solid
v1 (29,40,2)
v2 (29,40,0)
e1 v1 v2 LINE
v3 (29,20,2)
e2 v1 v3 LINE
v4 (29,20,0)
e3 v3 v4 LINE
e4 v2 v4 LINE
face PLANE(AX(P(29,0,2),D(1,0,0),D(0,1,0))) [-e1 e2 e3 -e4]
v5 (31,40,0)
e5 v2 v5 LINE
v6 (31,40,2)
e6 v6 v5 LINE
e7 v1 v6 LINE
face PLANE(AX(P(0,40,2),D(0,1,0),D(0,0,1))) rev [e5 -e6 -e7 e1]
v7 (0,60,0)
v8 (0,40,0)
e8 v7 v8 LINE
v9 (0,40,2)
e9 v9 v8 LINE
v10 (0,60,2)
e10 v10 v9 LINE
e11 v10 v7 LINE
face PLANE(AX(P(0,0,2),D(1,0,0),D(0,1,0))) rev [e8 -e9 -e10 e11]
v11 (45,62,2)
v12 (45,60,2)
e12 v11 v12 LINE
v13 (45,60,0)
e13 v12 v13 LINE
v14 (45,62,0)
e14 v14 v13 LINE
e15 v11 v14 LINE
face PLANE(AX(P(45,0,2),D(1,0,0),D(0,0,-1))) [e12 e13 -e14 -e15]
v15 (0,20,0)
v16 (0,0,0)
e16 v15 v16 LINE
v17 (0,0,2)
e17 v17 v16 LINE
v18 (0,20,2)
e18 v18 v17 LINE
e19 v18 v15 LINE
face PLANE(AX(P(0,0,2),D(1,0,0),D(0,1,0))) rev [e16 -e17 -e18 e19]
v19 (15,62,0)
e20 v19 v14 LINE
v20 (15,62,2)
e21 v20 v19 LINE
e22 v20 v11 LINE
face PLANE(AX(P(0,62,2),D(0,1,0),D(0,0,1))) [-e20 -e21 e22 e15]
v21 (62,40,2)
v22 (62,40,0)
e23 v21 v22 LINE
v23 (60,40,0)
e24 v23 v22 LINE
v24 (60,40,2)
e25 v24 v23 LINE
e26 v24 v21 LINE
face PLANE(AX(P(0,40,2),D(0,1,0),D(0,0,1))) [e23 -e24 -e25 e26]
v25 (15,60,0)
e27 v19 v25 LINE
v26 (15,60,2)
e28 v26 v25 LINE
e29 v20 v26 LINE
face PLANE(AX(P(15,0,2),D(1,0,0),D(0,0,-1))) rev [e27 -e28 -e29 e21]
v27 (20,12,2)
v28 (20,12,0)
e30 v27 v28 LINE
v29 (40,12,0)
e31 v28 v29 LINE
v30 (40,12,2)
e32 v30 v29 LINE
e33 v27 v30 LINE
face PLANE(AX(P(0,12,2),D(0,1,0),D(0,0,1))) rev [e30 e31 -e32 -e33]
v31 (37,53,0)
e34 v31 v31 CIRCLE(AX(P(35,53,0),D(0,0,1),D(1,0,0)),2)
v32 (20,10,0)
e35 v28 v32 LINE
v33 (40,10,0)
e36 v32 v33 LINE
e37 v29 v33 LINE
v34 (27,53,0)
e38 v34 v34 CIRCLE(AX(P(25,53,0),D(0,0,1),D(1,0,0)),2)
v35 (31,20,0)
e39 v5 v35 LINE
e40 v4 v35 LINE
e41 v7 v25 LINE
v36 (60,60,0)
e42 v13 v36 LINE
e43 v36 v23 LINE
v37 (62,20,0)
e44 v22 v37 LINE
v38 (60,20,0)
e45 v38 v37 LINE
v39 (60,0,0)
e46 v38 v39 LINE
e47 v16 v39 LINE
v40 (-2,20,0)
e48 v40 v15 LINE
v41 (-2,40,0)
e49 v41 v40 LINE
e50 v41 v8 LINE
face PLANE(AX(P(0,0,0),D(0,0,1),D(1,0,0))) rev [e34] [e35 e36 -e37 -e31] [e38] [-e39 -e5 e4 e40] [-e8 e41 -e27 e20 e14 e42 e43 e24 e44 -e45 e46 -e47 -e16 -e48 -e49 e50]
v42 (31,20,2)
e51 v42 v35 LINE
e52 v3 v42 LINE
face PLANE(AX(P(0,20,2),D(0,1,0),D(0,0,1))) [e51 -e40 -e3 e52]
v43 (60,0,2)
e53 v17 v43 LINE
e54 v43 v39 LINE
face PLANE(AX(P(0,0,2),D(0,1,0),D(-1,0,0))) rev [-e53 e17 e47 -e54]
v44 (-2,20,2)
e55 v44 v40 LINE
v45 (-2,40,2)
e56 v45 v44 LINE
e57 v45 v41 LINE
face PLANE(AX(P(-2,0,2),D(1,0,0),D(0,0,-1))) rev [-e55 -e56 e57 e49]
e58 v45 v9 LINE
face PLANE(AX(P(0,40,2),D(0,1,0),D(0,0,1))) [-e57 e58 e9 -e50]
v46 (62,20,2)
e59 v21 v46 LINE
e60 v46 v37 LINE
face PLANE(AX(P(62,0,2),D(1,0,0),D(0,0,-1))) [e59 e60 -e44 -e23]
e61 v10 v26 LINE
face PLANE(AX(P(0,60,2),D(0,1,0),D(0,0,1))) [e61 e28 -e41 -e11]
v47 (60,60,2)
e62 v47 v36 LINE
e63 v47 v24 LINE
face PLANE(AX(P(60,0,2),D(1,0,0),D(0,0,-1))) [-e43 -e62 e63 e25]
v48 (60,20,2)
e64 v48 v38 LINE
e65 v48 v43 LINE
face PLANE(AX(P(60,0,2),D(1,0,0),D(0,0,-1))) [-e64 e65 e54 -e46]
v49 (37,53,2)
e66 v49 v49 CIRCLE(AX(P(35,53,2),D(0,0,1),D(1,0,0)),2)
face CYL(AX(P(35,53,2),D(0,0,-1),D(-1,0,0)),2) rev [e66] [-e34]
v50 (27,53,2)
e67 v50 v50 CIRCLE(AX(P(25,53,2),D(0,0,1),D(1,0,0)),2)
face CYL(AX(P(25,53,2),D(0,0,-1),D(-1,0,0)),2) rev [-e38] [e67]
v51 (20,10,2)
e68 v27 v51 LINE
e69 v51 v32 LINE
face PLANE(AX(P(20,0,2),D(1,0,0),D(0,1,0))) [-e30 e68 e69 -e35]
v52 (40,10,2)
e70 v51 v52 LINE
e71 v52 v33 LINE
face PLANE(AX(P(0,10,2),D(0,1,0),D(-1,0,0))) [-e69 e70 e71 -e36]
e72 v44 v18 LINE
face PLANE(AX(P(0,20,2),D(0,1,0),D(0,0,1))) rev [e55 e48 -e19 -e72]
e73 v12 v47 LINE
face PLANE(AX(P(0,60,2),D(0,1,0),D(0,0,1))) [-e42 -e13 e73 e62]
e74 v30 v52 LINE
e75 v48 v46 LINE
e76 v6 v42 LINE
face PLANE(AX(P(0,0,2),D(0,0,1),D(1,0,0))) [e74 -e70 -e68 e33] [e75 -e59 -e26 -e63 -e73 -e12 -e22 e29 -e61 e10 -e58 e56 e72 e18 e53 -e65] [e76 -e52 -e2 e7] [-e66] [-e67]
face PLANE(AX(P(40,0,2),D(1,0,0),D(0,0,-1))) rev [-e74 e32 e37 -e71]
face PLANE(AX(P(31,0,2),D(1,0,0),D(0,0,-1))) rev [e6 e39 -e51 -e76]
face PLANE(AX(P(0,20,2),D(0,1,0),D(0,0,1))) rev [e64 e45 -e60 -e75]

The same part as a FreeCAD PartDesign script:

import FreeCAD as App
import Part
import Sketcher

V = App.Vector


def add_polygon(sketch, points):
    """Adds a closed chain of lines whose ends are joined by coincident constraints."""
    first, n = sketch.GeometryCount, len(points)
    for a, b in zip(points, points[1:] + points[:1]):
        sketch.addGeometry(Part.LineSegment(App.Vector(*a, 0), App.Vector(*b, 0)), False)
    for i in range(n):
        sketch.addConstraint(Sketcher.Constraint("Coincident", first + i, 2, first + (i + 1) % n, 1))

doc = App.newDocument("Part")
body = doc.addObject("PartDesign::Body", "Body")

# Sketch on XY plane
sketch1 = body.newObject("Sketcher::SketchObject", "Sketch")
sketch1.AttachmentSupport = (doc.getObject("XY_Plane"), [""])
sketch1.MapMode = "FlatFace"
add_polygon(sketch1, [(0, 20), (0, 0), (60, 0), (60, 20), (62, 20), (62, 40), (60, 40), (60, 60), (45, 60), (45, 62), (15, 62), (15, 60), (0, 60), (0, 40), (-2, 40), (-2, 20)])  # lines 0-15
add_polygon(sketch1, [(40, 10), (20, 10), (20, 12), (40, 12)])  # lines 16-19
add_polygon(sketch1, [(31, 20), (29, 20), (29, 40), (31, 40)])  # lines 20-23
sketch1.addGeometry(Part.Circle(V(25, 53, 0), V(0, 0, 1), 2), False)  # 24
sketch1.addGeometry(Part.Circle(V(35, 53, 0), V(0, 0, 1), 2), False)  # 25
sketch1.addConstraint(Sketcher.Constraint("Vertical", 0))
sketch1.addConstraint(Sketcher.Constraint("Horizontal", 1))
sketch1.addConstraint(Sketcher.Constraint("Vertical", 2))
sketch1.addConstraint(Sketcher.Constraint("Horizontal", 3))
sketch1.addConstraint(Sketcher.Constraint("Vertical", 4))
sketch1.addConstraint(Sketcher.Constraint("Horizontal", 5))
sketch1.addConstraint(Sketcher.Constraint("Vertical", 6))
sketch1.addConstraint(Sketcher.Constraint("Horizontal", 7))
sketch1.addConstraint(Sketcher.Constraint("Vertical", 8))
sketch1.addConstraint(Sketcher.Constraint("Horizontal", 9))
sketch1.addConstraint(Sketcher.Constraint("Vertical", 10))
sketch1.addConstraint(Sketcher.Constraint("Horizontal", 11))
sketch1.addConstraint(Sketcher.Constraint("Vertical", 12))
sketch1.addConstraint(Sketcher.Constraint("Horizontal", 13))
sketch1.addConstraint(Sketcher.Constraint("Vertical", 14))
sketch1.addConstraint(Sketcher.Constraint("Horizontal", 15))
sketch1.addConstraint(Sketcher.Constraint("Horizontal", 16))
sketch1.addConstraint(Sketcher.Constraint("Vertical", 17))
sketch1.addConstraint(Sketcher.Constraint("Horizontal", 18))
sketch1.addConstraint(Sketcher.Constraint("Vertical", 19))
sketch1.addConstraint(Sketcher.Constraint("Horizontal", 20))
sketch1.addConstraint(Sketcher.Constraint("Vertical", 21))
sketch1.addConstraint(Sketcher.Constraint("Horizontal", 22))
sketch1.addConstraint(Sketcher.Constraint("Vertical", 23))
sketch1.addConstraint(Sketcher.Constraint("Coincident", 0, 2, -1, 1))
sketch1.addConstraint(Sketcher.Constraint("Equal", 24, 25))
sketch1.addConstraint(Sketcher.Constraint("PointOnObject", 11, 2, -2))
sketch1.addConstraint(Sketcher.Constraint("Horizontal", 24, 3, 25, 3))
sketch1.addConstraint(Sketcher.Constraint("Horizontal", 7, 2, 10, 2))
sketch1.addConstraint(Sketcher.Constraint("Horizontal", 5, 2, 12, 2))
sketch1.addConstraint(Sketcher.Constraint("Horizontal", 3, 2, 14, 2))
sketch1.addConstraint(Sketcher.Constraint("Horizontal", 15, 2, 20, 2))
sketch1.addConstraint(Sketcher.Constraint("Horizontal", 13, 2, 21, 2))
sketch1.addConstraint(Sketcher.Constraint("Vertical", 2, 2, 5, 2))
sketch1.addConstraint(Sketcher.Constraint("Equal", 7, 11))
sketch1.addConstraint(Sketcher.Constraint("Equal", 5, 13))
sketch1.addConstraint(Sketcher.Constraint("Equal", 15, 20))
sketch1.addConstraint(Sketcher.Constraint("Equal", 18, 0))
sketch1.addConstraint(Sketcher.Constraint("Equal", 2, 4))
sketch1.addConstraint(Sketcher.Constraint("Equal", 4, 6))
sketch1.addConstraint(Sketcher.Constraint("Equal", 22, 8))
sketch1.addConstraint(Sketcher.Constraint("Equal", 10, 17))
sketch1.addConstraint(Sketcher.Constraint("Diameter", 24, 4.0))
sketch1.addConstraint(Sketcher.Constraint("DistanceX", 1, 1, 1, 2, 60.0))
sketch1.addConstraint(Sketcher.Constraint("DistanceX", 3, 1, 3, 2, 2.0))
sketch1.addConstraint(Sketcher.Constraint("DistanceX", 7, 2, 7, 1, 15.0))
sketch1.addConstraint(Sketcher.Constraint("DistanceX", 16, 2, 16, 1, 20.0))
sketch1.addConstraint(Sketcher.Constraint("DistanceX", -1, 1, 24, 3, 25.0))
sketch1.addConstraint(Sketcher.Constraint("DistanceY", -1, 1, 24, 3, 53.0))
sketch1.addConstraint(Sketcher.Constraint("DistanceX", -1, 1, 25, 3, 35.0))
sketch1.addConstraint(Sketcher.Constraint("DistanceX", -1, 1, 16, 2, 20.0))
sketch1.addConstraint(Sketcher.Constraint("DistanceY", -1, 1, 16, 2, 10.0))
sketch1.addConstraint(Sketcher.Constraint("DistanceX", -1, 1, 20, 2, 29.0))
pad1 = body.newObject("PartDesign::Pad", "Pad")
pad1.Profile = sketch1
pad1.Length = 2

doc.recompute()
